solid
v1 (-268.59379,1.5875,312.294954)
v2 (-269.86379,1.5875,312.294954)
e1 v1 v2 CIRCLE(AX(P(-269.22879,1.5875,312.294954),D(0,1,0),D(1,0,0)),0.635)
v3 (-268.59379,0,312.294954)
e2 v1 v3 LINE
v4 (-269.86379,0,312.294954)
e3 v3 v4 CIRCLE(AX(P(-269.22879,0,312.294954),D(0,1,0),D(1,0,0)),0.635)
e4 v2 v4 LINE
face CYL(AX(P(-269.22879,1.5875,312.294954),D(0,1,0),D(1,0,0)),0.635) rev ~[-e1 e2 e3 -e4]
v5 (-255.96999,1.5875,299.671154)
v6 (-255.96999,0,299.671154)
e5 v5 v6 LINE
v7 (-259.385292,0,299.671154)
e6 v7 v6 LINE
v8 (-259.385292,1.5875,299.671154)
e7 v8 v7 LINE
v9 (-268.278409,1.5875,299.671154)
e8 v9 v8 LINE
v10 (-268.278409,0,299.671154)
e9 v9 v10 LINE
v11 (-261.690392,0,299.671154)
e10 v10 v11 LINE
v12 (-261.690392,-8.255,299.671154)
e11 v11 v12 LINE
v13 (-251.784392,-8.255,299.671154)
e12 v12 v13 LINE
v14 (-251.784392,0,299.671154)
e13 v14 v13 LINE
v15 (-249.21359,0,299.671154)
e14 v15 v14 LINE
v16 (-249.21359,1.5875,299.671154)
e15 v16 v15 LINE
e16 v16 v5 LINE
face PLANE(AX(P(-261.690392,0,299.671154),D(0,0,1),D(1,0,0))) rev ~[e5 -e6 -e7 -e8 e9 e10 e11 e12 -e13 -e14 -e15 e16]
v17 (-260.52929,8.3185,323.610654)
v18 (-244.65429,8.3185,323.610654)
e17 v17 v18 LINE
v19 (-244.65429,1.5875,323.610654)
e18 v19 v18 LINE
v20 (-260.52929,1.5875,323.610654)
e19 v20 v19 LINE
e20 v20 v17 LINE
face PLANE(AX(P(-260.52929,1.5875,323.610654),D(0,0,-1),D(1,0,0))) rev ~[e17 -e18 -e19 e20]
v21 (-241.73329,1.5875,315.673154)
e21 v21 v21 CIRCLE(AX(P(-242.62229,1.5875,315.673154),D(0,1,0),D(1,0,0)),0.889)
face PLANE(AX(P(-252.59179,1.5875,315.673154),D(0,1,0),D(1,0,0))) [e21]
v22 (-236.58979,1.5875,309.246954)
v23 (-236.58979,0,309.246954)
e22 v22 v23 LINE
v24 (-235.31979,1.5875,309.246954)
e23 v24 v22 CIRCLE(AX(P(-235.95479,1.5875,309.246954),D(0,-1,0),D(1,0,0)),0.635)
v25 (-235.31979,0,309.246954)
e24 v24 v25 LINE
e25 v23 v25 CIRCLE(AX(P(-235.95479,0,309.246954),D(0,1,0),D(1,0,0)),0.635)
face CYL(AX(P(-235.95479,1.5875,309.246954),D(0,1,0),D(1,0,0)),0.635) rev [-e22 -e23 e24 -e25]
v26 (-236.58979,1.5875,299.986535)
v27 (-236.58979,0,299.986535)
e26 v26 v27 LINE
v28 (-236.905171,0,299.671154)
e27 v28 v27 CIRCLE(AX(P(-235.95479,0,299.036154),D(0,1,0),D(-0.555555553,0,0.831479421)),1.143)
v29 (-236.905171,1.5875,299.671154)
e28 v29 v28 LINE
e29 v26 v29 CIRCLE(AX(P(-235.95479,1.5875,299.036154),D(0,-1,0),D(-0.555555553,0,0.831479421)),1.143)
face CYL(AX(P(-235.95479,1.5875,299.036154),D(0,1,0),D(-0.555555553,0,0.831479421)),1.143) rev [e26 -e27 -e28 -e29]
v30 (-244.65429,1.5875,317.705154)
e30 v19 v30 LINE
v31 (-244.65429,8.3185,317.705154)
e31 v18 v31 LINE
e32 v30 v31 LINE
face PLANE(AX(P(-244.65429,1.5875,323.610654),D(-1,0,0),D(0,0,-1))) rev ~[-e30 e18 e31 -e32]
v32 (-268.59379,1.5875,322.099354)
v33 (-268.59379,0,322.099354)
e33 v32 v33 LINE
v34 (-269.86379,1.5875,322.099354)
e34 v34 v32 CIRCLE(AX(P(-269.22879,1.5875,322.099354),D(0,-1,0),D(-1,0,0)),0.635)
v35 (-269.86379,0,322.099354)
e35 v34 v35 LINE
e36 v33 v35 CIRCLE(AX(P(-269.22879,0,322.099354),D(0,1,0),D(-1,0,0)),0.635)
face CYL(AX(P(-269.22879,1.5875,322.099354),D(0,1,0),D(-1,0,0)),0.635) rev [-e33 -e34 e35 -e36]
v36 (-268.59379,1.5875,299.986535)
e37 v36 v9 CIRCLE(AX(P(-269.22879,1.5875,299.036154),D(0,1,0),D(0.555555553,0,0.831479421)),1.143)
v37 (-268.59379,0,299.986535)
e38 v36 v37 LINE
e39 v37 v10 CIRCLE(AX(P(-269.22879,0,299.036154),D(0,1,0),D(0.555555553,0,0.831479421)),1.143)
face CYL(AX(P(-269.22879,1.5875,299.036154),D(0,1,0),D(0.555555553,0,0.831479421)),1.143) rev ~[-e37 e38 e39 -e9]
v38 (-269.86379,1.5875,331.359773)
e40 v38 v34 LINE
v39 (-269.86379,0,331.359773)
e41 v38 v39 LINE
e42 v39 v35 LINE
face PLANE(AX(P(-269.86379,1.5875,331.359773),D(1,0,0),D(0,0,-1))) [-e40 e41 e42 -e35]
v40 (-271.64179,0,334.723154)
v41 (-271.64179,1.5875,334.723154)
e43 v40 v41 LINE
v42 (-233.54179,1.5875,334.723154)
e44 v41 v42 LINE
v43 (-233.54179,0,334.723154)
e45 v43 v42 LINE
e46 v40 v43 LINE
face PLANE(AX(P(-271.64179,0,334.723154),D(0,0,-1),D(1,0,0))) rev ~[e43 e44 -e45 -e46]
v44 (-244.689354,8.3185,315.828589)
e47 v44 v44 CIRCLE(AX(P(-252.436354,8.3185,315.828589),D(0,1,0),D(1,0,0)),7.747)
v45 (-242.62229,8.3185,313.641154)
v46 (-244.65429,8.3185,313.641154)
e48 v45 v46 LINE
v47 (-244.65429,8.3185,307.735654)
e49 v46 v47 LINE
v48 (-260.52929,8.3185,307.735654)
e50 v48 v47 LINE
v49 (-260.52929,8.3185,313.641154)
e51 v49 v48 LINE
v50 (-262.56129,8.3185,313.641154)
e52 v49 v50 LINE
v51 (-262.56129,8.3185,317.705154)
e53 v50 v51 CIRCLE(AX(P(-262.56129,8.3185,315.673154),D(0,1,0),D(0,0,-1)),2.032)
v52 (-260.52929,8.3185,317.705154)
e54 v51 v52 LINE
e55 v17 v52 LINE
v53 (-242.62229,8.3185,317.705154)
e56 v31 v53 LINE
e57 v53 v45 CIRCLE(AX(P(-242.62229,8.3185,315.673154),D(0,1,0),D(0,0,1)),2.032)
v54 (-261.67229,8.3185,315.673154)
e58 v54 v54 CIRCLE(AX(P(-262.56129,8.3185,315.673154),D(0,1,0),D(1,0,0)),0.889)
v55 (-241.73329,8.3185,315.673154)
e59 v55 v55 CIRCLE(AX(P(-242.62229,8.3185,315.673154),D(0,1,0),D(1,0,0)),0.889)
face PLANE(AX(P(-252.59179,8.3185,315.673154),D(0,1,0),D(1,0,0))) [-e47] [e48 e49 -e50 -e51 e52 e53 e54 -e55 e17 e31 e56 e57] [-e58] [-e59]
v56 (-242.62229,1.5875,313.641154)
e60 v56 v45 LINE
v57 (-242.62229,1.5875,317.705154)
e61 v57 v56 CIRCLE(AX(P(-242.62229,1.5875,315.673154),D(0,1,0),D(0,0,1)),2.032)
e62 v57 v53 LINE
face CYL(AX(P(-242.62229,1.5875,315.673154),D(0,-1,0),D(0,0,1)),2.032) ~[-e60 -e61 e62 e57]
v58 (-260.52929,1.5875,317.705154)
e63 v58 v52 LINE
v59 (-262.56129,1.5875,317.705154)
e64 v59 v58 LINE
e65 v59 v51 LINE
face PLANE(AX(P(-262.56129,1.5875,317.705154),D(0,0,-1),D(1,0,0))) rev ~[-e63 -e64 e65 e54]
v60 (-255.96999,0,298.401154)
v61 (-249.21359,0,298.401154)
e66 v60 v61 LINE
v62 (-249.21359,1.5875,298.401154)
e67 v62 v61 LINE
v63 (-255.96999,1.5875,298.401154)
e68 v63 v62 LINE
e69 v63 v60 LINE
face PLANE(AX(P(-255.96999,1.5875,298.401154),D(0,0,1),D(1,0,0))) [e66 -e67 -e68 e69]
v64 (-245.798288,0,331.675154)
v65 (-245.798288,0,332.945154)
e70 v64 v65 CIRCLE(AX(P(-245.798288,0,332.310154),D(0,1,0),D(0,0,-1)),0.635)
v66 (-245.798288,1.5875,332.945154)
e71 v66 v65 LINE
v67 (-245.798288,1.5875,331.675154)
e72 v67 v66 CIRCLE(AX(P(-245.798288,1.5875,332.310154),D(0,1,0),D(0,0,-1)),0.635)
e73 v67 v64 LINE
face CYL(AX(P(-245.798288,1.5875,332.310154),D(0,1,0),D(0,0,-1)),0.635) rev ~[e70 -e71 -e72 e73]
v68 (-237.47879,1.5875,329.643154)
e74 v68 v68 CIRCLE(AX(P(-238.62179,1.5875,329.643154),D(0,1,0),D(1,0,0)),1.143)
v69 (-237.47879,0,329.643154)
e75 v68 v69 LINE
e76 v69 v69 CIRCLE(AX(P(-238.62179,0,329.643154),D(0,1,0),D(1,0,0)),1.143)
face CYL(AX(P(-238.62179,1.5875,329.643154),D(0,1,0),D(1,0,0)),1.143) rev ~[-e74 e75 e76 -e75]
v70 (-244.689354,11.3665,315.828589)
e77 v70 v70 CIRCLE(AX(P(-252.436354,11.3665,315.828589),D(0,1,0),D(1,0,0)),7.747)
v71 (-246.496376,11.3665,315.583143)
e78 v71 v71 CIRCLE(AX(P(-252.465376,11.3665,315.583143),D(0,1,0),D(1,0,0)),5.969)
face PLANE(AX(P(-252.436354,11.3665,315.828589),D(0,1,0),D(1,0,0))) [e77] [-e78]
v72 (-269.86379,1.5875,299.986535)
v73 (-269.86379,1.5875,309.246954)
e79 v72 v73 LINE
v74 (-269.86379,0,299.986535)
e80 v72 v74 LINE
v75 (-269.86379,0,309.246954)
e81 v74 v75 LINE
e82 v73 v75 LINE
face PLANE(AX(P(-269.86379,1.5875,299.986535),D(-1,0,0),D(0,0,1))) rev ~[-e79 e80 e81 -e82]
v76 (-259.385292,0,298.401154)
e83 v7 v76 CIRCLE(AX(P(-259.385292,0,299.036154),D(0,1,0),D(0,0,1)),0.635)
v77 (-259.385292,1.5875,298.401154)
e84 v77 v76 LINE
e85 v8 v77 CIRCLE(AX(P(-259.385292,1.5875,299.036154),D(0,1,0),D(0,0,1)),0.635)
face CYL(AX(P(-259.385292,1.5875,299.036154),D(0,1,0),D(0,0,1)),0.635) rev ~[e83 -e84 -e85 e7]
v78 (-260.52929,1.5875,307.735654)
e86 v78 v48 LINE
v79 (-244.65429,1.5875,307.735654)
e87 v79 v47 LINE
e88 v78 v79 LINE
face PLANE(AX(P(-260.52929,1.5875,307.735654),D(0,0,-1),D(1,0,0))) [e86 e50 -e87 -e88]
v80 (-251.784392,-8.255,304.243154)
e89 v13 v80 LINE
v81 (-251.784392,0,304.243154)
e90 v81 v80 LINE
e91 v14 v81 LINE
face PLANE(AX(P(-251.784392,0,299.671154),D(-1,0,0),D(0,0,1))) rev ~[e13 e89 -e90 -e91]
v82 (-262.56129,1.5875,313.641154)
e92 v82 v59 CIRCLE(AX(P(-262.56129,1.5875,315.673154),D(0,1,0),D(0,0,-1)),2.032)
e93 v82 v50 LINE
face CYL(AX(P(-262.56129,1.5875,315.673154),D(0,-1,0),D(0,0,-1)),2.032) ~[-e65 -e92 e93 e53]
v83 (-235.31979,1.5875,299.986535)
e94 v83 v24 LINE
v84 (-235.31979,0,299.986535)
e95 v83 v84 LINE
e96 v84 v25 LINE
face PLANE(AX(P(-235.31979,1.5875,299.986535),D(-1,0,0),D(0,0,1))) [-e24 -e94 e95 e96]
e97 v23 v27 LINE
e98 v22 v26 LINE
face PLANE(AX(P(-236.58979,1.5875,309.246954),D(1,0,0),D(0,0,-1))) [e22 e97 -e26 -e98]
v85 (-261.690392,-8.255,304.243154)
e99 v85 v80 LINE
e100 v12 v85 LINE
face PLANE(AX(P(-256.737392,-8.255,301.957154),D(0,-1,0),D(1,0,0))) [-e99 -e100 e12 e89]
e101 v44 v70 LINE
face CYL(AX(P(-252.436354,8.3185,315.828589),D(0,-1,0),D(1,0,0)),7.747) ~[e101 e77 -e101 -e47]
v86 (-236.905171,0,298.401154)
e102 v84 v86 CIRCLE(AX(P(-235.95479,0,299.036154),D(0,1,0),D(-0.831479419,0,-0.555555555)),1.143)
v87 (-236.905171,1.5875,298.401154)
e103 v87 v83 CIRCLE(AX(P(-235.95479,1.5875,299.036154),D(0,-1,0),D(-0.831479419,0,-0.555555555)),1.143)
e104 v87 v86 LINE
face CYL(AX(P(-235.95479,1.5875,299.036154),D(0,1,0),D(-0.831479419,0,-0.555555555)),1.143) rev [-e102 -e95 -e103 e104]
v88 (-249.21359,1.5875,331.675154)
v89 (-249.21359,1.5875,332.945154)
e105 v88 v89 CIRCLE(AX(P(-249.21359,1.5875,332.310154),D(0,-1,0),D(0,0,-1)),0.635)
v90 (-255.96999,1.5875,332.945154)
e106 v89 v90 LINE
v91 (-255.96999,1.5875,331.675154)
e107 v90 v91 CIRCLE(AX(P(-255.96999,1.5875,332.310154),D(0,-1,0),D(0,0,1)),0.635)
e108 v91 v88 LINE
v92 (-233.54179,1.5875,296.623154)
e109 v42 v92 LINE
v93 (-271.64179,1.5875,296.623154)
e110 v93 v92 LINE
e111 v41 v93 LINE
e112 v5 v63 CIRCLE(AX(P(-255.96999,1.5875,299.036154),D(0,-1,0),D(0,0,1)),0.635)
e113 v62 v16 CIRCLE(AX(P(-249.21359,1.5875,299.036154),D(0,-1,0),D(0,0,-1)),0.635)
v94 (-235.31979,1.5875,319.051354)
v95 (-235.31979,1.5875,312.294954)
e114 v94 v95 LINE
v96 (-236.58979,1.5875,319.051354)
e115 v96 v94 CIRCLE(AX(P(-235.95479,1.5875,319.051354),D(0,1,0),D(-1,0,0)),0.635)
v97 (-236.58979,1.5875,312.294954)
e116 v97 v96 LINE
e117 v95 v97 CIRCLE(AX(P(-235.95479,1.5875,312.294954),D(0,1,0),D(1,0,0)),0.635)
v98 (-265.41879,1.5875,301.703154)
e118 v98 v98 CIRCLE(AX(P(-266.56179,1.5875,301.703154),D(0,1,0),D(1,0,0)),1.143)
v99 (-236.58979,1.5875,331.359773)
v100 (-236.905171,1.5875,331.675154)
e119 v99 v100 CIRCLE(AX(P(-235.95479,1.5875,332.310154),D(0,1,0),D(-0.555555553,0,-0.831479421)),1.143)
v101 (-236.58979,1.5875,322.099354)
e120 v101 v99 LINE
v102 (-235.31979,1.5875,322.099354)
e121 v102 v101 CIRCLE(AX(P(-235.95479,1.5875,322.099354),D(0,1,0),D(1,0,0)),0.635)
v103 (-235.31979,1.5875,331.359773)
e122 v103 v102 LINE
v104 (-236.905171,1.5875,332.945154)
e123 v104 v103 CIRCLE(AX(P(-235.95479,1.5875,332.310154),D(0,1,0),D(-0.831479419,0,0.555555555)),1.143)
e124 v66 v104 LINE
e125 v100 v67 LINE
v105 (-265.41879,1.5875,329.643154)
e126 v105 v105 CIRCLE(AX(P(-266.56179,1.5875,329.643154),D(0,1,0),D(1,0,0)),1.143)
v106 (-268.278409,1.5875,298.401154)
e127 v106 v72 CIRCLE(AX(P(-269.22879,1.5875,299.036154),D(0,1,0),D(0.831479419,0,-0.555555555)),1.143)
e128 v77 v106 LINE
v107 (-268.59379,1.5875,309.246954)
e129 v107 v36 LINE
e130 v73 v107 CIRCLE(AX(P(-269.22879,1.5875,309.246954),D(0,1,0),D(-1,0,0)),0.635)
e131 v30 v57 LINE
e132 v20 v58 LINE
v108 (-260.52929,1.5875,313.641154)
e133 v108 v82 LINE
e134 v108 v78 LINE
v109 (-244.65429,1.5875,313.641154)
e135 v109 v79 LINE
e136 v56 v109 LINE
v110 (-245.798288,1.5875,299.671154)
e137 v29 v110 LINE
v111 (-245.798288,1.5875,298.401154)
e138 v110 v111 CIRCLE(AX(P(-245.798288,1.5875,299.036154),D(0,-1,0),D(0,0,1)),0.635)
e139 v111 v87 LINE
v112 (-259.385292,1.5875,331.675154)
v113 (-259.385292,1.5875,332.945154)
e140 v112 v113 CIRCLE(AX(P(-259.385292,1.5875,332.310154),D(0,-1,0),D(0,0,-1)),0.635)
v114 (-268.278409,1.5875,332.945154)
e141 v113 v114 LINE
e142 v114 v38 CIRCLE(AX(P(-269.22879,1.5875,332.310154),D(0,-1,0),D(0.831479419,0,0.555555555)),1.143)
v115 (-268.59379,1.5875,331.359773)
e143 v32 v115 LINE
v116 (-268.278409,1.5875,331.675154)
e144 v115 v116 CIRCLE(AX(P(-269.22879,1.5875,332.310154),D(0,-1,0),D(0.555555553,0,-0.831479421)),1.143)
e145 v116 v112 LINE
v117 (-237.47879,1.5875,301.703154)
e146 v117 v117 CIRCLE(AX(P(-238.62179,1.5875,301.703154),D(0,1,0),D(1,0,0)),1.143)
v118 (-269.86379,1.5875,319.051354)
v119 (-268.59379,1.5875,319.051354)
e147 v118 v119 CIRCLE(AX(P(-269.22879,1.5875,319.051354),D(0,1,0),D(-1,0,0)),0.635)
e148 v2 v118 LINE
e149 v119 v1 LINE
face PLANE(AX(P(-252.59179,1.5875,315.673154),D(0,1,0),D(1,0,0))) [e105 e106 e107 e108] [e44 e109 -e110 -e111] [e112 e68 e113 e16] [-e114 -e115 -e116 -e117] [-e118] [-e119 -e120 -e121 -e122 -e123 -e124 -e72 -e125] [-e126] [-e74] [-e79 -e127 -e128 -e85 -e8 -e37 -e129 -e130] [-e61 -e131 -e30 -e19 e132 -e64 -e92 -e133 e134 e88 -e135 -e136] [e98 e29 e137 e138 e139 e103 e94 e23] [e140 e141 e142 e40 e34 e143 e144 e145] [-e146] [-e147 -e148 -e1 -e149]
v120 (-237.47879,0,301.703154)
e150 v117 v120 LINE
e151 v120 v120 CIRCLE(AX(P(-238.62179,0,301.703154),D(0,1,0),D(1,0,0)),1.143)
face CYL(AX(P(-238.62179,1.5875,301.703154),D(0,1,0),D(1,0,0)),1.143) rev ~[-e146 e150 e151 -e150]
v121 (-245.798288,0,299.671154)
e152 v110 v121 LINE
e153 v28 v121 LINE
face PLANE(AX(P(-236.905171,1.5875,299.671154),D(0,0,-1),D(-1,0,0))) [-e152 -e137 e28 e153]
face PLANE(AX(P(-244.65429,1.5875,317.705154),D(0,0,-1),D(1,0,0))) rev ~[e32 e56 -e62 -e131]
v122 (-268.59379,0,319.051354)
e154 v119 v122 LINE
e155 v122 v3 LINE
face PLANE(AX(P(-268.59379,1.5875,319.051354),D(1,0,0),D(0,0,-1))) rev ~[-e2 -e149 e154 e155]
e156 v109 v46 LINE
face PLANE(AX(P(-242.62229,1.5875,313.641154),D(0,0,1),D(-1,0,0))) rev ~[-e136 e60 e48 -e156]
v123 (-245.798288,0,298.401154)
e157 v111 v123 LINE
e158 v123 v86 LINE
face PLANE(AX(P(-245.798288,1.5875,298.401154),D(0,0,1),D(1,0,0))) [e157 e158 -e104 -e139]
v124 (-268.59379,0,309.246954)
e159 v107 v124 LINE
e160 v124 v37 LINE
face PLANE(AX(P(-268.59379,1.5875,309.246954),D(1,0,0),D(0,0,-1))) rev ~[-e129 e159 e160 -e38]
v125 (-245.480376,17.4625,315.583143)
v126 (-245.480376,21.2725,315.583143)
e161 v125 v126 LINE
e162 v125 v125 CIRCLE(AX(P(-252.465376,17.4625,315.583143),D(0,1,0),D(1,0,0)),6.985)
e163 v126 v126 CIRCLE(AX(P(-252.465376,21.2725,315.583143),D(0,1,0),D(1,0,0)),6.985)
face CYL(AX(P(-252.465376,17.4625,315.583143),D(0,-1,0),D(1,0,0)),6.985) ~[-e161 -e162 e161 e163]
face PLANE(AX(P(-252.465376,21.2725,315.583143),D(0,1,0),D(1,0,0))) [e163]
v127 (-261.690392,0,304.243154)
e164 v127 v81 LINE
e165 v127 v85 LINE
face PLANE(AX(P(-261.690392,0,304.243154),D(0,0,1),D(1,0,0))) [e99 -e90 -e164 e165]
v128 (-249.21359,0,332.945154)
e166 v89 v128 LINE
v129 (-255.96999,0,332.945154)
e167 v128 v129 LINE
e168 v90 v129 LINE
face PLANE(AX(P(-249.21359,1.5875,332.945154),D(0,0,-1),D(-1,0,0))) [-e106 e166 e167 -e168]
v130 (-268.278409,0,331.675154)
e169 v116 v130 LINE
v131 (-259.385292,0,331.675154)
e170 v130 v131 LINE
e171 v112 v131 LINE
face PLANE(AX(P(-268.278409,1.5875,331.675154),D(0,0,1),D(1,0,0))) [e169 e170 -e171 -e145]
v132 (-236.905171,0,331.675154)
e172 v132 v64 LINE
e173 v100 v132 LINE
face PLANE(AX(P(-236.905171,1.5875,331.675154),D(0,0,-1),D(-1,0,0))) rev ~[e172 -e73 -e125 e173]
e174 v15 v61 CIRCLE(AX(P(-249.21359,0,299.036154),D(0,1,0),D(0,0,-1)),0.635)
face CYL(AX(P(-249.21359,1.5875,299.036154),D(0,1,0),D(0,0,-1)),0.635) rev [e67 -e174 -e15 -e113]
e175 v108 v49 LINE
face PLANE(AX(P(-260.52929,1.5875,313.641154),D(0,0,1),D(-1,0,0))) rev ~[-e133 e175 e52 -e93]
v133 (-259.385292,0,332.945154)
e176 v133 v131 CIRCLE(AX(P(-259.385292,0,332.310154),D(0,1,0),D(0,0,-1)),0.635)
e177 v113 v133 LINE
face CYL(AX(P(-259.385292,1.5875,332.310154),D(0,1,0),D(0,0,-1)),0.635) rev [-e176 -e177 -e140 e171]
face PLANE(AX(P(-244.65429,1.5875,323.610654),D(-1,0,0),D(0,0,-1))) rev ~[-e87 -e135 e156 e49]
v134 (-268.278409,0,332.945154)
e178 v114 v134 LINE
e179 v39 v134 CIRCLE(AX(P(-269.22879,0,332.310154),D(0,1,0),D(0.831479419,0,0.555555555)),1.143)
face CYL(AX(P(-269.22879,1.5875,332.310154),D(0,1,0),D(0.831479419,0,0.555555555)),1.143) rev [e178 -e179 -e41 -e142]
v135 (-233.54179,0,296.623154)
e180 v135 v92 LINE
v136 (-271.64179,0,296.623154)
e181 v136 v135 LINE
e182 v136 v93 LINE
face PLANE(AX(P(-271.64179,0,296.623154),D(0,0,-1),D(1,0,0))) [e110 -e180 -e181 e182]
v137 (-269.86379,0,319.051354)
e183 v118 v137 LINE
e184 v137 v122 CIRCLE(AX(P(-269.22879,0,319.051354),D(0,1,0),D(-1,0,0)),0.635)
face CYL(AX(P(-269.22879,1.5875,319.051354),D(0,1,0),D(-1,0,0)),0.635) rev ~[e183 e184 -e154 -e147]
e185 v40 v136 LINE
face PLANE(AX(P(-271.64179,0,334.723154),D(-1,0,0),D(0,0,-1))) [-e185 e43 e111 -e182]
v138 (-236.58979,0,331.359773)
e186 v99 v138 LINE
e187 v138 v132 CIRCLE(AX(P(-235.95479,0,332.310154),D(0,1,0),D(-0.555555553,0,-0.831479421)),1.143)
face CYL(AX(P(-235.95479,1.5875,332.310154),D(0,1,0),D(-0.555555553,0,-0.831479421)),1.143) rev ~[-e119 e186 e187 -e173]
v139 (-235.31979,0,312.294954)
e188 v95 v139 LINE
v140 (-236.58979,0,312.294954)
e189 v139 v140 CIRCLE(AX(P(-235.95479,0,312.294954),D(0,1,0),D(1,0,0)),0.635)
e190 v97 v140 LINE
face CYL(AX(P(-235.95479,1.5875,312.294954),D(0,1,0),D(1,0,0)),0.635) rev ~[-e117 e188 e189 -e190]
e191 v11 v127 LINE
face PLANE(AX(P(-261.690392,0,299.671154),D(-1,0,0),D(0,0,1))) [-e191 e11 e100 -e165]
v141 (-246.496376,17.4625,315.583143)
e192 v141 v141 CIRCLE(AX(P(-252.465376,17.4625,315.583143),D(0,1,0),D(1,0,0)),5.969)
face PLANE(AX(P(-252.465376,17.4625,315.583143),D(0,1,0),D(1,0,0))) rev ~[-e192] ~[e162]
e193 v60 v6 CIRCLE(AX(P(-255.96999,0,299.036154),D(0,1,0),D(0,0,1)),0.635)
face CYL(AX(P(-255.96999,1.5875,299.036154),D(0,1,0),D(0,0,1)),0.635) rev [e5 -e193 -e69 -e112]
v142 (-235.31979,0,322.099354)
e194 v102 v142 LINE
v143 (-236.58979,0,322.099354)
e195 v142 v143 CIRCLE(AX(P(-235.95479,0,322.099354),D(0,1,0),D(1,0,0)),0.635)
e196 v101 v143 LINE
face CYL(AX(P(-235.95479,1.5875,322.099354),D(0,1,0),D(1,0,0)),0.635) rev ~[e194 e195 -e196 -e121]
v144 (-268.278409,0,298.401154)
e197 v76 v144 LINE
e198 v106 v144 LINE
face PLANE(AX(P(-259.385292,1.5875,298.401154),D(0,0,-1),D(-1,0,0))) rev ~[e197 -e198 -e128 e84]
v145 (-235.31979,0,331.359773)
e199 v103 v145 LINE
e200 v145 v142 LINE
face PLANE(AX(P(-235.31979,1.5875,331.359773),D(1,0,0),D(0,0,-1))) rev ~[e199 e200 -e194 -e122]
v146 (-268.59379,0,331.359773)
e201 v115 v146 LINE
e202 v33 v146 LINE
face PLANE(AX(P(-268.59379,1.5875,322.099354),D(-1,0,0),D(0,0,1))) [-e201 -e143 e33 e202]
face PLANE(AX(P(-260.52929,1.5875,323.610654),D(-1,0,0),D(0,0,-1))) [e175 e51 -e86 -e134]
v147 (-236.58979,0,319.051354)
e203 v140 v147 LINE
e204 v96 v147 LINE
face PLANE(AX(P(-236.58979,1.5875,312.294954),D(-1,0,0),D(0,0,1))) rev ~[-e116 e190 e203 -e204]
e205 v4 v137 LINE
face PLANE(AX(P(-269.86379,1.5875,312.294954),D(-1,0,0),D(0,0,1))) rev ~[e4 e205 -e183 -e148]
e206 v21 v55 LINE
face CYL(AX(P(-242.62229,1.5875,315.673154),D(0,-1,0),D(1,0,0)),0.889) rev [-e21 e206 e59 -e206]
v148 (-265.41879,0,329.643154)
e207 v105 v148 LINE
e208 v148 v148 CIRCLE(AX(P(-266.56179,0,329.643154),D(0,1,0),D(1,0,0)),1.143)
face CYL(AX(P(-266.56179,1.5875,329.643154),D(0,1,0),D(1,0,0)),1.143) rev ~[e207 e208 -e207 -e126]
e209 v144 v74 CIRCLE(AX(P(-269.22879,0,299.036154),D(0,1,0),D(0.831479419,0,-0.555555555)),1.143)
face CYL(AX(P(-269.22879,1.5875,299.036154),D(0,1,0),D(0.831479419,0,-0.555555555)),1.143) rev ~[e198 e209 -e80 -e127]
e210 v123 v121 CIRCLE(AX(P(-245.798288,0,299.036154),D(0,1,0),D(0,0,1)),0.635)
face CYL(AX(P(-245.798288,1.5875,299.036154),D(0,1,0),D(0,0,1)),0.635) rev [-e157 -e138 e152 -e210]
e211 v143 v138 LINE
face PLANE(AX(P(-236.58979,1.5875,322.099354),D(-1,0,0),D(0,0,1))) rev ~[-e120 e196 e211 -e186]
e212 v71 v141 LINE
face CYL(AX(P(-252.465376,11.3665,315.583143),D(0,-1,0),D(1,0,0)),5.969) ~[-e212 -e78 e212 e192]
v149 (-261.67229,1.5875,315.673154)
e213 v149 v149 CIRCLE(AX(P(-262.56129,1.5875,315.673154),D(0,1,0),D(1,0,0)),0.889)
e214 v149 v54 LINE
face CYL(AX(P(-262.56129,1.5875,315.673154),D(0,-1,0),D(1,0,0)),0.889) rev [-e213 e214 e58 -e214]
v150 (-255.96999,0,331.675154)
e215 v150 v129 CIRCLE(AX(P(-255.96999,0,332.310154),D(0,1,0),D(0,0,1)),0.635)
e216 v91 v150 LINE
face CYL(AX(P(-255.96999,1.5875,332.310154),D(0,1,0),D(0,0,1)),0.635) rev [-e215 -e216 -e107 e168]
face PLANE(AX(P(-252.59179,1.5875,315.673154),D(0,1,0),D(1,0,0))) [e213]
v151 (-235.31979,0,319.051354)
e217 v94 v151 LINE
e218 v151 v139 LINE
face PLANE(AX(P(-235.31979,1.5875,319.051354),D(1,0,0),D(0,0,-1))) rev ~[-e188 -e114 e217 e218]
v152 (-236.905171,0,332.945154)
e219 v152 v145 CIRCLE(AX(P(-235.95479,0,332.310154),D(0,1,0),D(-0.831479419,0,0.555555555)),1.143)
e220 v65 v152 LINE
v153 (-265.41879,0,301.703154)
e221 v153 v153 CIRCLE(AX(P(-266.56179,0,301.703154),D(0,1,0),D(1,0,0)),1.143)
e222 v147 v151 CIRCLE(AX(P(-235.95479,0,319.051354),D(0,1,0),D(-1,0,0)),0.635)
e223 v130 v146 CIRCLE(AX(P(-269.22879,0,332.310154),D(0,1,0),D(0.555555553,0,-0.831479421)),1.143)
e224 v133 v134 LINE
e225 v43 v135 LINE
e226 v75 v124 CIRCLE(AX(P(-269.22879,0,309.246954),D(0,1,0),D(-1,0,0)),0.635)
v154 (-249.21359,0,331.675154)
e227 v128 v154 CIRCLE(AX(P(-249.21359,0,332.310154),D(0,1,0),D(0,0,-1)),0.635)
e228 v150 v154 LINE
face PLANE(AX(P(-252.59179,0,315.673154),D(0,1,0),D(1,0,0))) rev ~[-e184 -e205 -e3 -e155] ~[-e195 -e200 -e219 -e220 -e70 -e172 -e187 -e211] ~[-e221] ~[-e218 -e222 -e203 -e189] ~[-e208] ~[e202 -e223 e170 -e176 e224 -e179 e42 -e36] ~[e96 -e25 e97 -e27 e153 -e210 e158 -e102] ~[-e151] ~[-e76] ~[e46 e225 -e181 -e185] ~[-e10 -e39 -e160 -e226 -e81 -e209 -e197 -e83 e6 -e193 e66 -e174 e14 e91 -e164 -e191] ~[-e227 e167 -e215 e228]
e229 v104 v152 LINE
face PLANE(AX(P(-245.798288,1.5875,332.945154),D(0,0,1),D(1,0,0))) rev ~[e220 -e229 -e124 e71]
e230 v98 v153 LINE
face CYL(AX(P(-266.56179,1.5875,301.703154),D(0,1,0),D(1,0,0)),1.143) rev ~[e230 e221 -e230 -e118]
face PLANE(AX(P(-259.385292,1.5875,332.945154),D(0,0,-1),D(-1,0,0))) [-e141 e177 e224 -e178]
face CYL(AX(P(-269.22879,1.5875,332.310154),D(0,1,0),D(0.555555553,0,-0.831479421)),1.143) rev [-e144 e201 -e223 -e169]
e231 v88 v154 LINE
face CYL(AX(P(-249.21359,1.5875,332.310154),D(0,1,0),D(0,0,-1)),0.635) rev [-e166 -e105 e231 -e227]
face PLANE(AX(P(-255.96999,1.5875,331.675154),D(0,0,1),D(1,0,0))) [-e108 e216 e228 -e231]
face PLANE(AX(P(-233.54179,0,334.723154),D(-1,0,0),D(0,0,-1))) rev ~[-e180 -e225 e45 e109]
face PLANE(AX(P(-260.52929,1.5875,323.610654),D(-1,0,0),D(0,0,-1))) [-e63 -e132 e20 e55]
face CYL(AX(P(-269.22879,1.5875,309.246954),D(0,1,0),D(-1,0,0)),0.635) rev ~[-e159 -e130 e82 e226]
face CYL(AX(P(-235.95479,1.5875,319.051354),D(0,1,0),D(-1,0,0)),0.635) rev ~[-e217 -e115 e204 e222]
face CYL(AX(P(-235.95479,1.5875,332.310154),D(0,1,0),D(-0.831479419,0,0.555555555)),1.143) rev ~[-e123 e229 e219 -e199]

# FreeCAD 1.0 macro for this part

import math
import FreeCAD as App
import Part
import Sketcher

V = App.Vector
Q = App.Units.Quantity

doc = App.newDocument("Part")
params = doc.addObject("Spreadsheet::Sheet", "Params")
for row, (alias, value) in enumerate([
    ("sketch1_width", "1.5 in"),
    ("pad1_length", "0.0625 in"),
    ("sketch2_diameter", "0.09 in"),
    ("sketch2_radius", "0.025 in"),
    ("sketch2_width", "0.266 in"),
    ("pocket1_length", "0.31 in"),
    ("sketch3_width", "0.625 in"),
    ("pad2_length", "0.265 in"),
    ("sketch4_diameter", "0.07 in"),
    ("sketch4_radius", "0.08 in"),
    ("sketch4_width", "0.08 in"),
    ("pad3_length", "0.265 in"),
    ("sketch5_diameter", "0.61 in"),
    ("pad4_length", "0.12 in"),
    ("sketch6_diameter", "0.47 in"),
    ("pad5_length", "0.24 in"),
    ("sketch7_diameter", "0.55 in"),
    ("pad6_length", "0.15 in"),
    ("sketch8_width", "0.39 in"),
    ("sketch8_height", "0.18 in"),
    ("pad7_length", "0.325 in"),
], start=1):
    params.set(f"A{row}", alias)
    params.set(f"B{row}", "=" + value)
    params.setAlias(f"B{row}", alias)

body = doc.addObject("PartDesign::Body", "Body")

# Sketch on XZ plane
sketch1 = body.newObject("Sketcher::SketchObject", "Sketch")
sketch1.AttachmentSupport = (doc.getObject("XZ_Plane"), [""])
sketch1.MapMode = "FlatFace"
sketch1.addGeometry(Part.LineSegment(V(-271.64179, 296.623154, 0), V(-271.64179, 334.723154, 0)), False)
sketch1.addGeometry(Part.LineSegment(V(-271.64179, 334.723154, 0), V(-233.54179, 334.723154, 0)), False)
sketch1.addGeometry(Part.LineSegment(V(-233.54179, 334.723154, 0), V(-233.54179, 296.623154, 0)), False)
sketch1.addGeometry(Part.LineSegment(V(-233.54179, 296.623154, 0), V(-271.64179, 296.623154, 0)), False)
sketch1.addConstraint(Sketcher.Constraint("Coincident", 0, 2, 1, 1))
sketch1.addConstraint(Sketcher.Constraint("Coincident", 1, 2, 2, 1))
sketch1.addConstraint(Sketcher.Constraint("Coincident", 2, 2, 3, 1))
sketch1.addConstraint(Sketcher.Constraint("Coincident", 3, 2, 0, 1))
sketch1.addConstraint(Sketcher.Constraint("Vertical", 0))
sketch1.addConstraint(Sketcher.Constraint("Horizontal", 1))
sketch1.addConstraint(Sketcher.Constraint("Vertical", 2))
sketch1.addConstraint(Sketcher.Constraint("Horizontal", 3))
sketch1.addConstraint(Sketcher.Constraint("Equal", 3, 0))
sketch1.addConstraint(Sketcher.Constraint("DistanceX", 1, 1, 1, 2, Q("1.5 in")))
sketch1.addConstraint(Sketcher.Constraint("DistanceX", 0, 2, -1, 1, Q("271.64179 mm")))
sketch1.addConstraint(Sketcher.Constraint("DistanceY", -1, 1, 0, 2, Q("334.723154 mm")))
sketch1.setExpression("Constraints[9]", "Params.sketch1_width")
pad1 = body.newObject("PartDesign::Pad", "Pad")
pad1.Profile = sketch1
pad1.setExpression("Length", "Params.pad1_length")
pad1.Reversed = True

# Sketch on XZ plane
sketch2 = body.newObject("Sketcher::SketchObject", "Sketch001")
sketch2.AttachmentSupport = (doc.getObject("XZ_Plane"), [""])
sketch2.MapMode = "FlatFace"
sketch2.AttachmentOffset = App.Placement(V(0, 0, -0.0625 * 25.4), App.Rotation())
sketch2.addGeometry(Part.Circle(V(-266.56179, 301.703154, 0), V(0, 0, 1), 1.143), False)
sketch2.addGeometry(Part.Circle(V(-238.62179, 301.703154, 0), V(0, 0, 1), 1.143), False)
sketch2.addGeometry(Part.Circle(V(-266.56179, 329.643154, 0), V(0, 0, 1), 1.143), False)
sketch2.addGeometry(Part.Circle(V(-238.62179, 329.643154, 0), V(0, 0, 1), 1.143), False)
sketch2.addGeometry(Part.LineSegment(V(-269.86379, 312.294954, 0), V(-269.86379, 319.051354, 0)), False)
sketch2.addGeometry(Part.ArcOfCircle(Part.Circle(V(-269.22879, 319.051354, 0), V(0, 0, 1), 0.635), math.radians(0), math.radians(180)), False)
sketch2.addGeometry(Part.LineSegment(V(-268.59379, 319.051354, 0), V(-268.59379, 312.294954, 0)), False)
sketch2.addGeometry(Part.ArcOfCircle(Part.Circle(V(-269.22879, 312.294954, 0), V(0, 0, 1), 0.635), math.radians(180), math.radians(360)), False)
sketch2.addGeometry(Part.LineSegment(V(-259.385292, 298.401154, 0), V(-268.278409, 298.401154, 0)), False)
sketch2.addGeometry(Part.ArcOfCircle(Part.Circle(V(-269.22879, 299.036154, 0), V(0, 0, 1), 1.143), math.radians(123.748989), math.radians(326.251011)), False)
sketch2.addGeometry(Part.LineSegment(V(-269.86379, 299.986535, 0), V(-269.86379, 309.246954, 0)), False)
sketch2.addGeometry(Part.ArcOfCircle(Part.Circle(V(-269.22879, 309.246954, 0), V(0, 0, 1), 0.635), math.radians(0), math.radians(180)), False)
sketch2.addGeometry(Part.LineSegment(V(-268.59379, 309.246954, 0), V(-268.59379, 299.986535, 0)), False)
sketch2.addGeometry(Part.ArcOfCircle(Part.Circle(V(-269.22879, 299.036154, 0), V(0, 0, 1), 1.143), math.radians(33.748988), math.radians(56.251012)), False)
sketch2.addGeometry(Part.LineSegment(V(-268.278409, 299.671154, 0), V(-259.385292, 299.671154, 0)), False)
sketch2.addGeometry(Part.ArcOfCircle(Part.Circle(V(-259.385292, 299.036154, 0), V(0, 0, 1), 0.635), math.radians(-90), math.radians(90)), False)
sketch2.addGeometry(Part.LineSegment(V(-249.21359, 298.401154, 0), V(-255.96999, 298.401154, 0)), False)
sketch2.addGeometry(Part.ArcOfCircle(Part.Circle(V(-255.96999, 299.036154, 0), V(0, 0, 1), 0.635), math.radians(90), math.radians(270)), False)
sketch2.addGeometry(Part.LineSegment(V(-255.96999, 299.671154, 0), V(-249.21359, 299.671154, 0)), False)
sketch2.addGeometry(Part.ArcOfCircle(Part.Circle(V(-249.21359, 299.036154, 0), V(0, 0, 1), 0.635), math.radians(-90), math.radians(90)), False)
sketch2.addGeometry(Part.LineSegment(V(-236.58979, 299.986535, 0), V(-236.58979, 309.246954, 0)), False)
sketch2.addGeometry(Part.ArcOfCircle(Part.Circle(V(-235.95479, 309.246954, 0), V(0, 0, 1), 0.635), math.radians(0), math.radians(180)), False)
sketch2.addGeometry(Part.LineSegment(V(-235.31979, 309.246954, 0), V(-235.31979, 299.986535, 0)), False)
sketch2.addGeometry(Part.ArcOfCircle(Part.Circle(V(-235.95479, 299.036154, 0), V(0, 0, 1), 1.143), math.radians(-146.251011), math.radians(56.251011)), False)
sketch2.addGeometry(Part.LineSegment(V(-236.905171, 298.401154, 0), V(-245.798288, 298.401154, 0)), False)
sketch2.addGeometry(Part.ArcOfCircle(Part.Circle(V(-245.798288, 299.036154, 0), V(0, 0, 1), 0.635), math.radians(90), math.radians(270)), False)
sketch2.addGeometry(Part.LineSegment(V(-245.798288, 299.671154, 0), V(-236.905171, 299.671154, 0)), False)
sketch2.addGeometry(Part.ArcOfCircle(Part.Circle(V(-235.95479, 299.036154, 0), V(0, 0, 1), 1.143), math.radians(123.748988), math.radians(146.251012)), False)
sketch2.addGeometry(Part.LineSegment(V(-236.58979, 312.294954, 0), V(-236.58979, 319.051354, 0)), False)
sketch2.addGeometry(Part.ArcOfCircle(Part.Circle(V(-235.95479, 319.051354, 0), V(0, 0, 1), 0.635), math.radians(0), math.radians(180)), False)
sketch2.addGeometry(Part.LineSegment(V(-235.31979, 319.051354, 0), V(-235.31979, 312.294954, 0)), False)
sketch2.addGeometry(Part.ArcOfCircle(Part.Circle(V(-235.95479, 312.294954, 0), V(0, 0, 1), 0.635), math.radians(180), math.radians(360)), False)
sketch2.addGeometry(Part.LineSegment(V(-245.798288, 332.945154, 0), V(-236.905171, 332.945154, 0)), False)
sketch2.addGeometry(Part.ArcOfCircle(Part.Circle(V(-235.95479, 332.310154, 0), V(0, 0, 1), 1.143), math.radians(-56.251011), math.radians(146.251011)), False)
sketch2.addGeometry(Part.LineSegment(V(-235.31979, 331.359773, 0), V(-235.31979, 322.099354, 0)), False)
sketch2.addGeometry(Part.ArcOfCircle(Part.Circle(V(-235.95479, 322.099354, 0), V(0, 0, 1), 0.635), math.radians(180), math.radians(360)), False)
sketch2.addGeometry(Part.LineSegment(V(-236.58979, 322.099354, 0), V(-236.58979, 331.359773, 0)), False)
sketch2.addGeometry(Part.ArcOfCircle(Part.Circle(V(-235.95479, 332.310154, 0), V(0, 0, 1), 1.143), math.radians(-146.251012), math.radians(-123.748988)), False)
sketch2.addGeometry(Part.LineSegment(V(-236.905171, 331.675154, 0), V(-245.798288, 331.675154, 0)), False)
sketch2.addGeometry(Part.ArcOfCircle(Part.Circle(V(-245.798288, 332.310154, 0), V(0, 0, 1), 0.635), math.radians(90), math.radians(270)), False)
sketch2.addGeometry(Part.LineSegment(V(-268.59379, 331.359773, 0), V(-268.59379, 322.099354, 0)), False)
sketch2.addGeometry(Part.ArcOfCircle(Part.Circle(V(-269.22879, 322.099354, 0), V(0, 0, 1), 0.635), math.radians(180), math.radians(360)), False)
sketch2.addGeometry(Part.LineSegment(V(-269.86379, 322.099354, 0), V(-269.86379, 331.359773, 0)), False)
sketch2.addGeometry(Part.ArcOfCircle(Part.Circle(V(-269.22879, 332.310154, 0), V(0, 0, 1), 1.143), math.radians(33.748989), math.radians(236.251011)), False)
sketch2.addGeometry(Part.LineSegment(V(-268.278409, 332.945154, 0), V(-259.385292, 332.945154, 0)), False)
sketch2.addGeometry(Part.ArcOfCircle(Part.Circle(V(-259.385292, 332.310154, 0), V(0, 0, 1), 0.635), math.radians(-90), math.radians(90)), False)
sketch2.addGeometry(Part.LineSegment(V(-259.385292, 331.675154, 0), V(-268.278409, 331.675154, 0)), False)
sketch2.addGeometry(Part.ArcOfCircle(Part.Circle(V(-269.22879, 332.310154, 0), V(0, 0, 1), 1.143), math.radians(-56.251012), math.radians(-33.748988)), False)
sketch2.addGeometry(Part.LineSegment(V(-249.21359, 331.675154, 0), V(-255.96999, 331.675154, 0)), False)
sketch2.addGeometry(Part.ArcOfCircle(Part.Circle(V(-255.96999, 332.310154, 0), V(0, 0, 1), 0.635), math.radians(90), math.radians(270)), False)
sketch2.addGeometry(Part.LineSegment(V(-255.96999, 332.945154, 0), V(-249.21359, 332.945154, 0)), False)
sketch2.addGeometry(Part.ArcOfCircle(Part.Circle(V(-249.21359, 332.310154, 0), V(0, 0, 1), 0.635), math.radians(-90), math.radians(90)), False)
sketch2.addConstraint(Sketcher.Constraint("Tangent", 4, 2, 5, 2))
sketch2.addConstraint(Sketcher.Constraint("Tangent", 5, 1, 6, 1))
sketch2.addConstraint(Sketcher.Constraint("Tangent", 6, 2, 7, 2))
sketch2.addConstraint(Sketcher.Constraint("Tangent", 7, 1, 4, 1))
sketch2.addConstraint(Sketcher.Constraint("Coincident", 8, 2, 9, 2))
sketch2.addConstraint(Sketcher.Constraint("Coincident", 9, 1, 10, 1))
sketch2.addConstraint(Sketcher.Constraint("Tangent", 10, 2, 11, 2))
sketch2.addConstraint(Sketcher.Constraint("Tangent", 11, 1, 12, 1))
sketch2.addConstraint(Sketcher.Constraint("Coincident", 12, 2, 13, 2))
sketch2.addConstraint(Sketcher.Constraint("Coincident", 13, 1, 14, 1))
sketch2.addConstraint(Sketcher.Constraint("Tangent", 14, 2, 15, 2))
sketch2.addConstraint(Sketcher.Constraint("Tangent", 15, 1, 8, 1))
sketch2.addConstraint(Sketcher.Constraint("Tangent", 16, 2, 17, 2))
sketch2.addConstraint(Sketcher.Constraint("Tangent", 17, 1, 18, 1))
sketch2.addConstraint(Sketcher.Constraint("Tangent", 18, 2, 19, 2))
sketch2.addConstraint(Sketcher.Constraint("Tangent", 19, 1, 16, 1))
sketch2.addConstraint(Sketcher.Constraint("Tangent", 20, 2, 21, 2))
sketch2.addConstraint(Sketcher.Constraint("Tangent", 21, 1, 22, 1))
sketch2.addConstraint(Sketcher.Constraint("Coincident", 22, 2, 23, 2))
sketch2.addConstraint(Sketcher.Constraint("Coincident", 23, 1, 24, 1))
sketch2.addConstraint(Sketcher.Constraint("Tangent", 24, 2, 25, 2))
sketch2.addConstraint(Sketcher.Constraint("Tangent", 25, 1, 26, 1))
sketch2.addConstraint(Sketcher.Constraint("Coincident", 26, 2, 27, 2))
sketch2.addConstraint(Sketcher.Constraint("Coincident", 27, 1, 20, 1))
sketch2.addConstraint(Sketcher.Constraint("Tangent", 28, 2, 29, 2))
sketch2.addConstraint(Sketcher.Constraint("Tangent", 29, 1, 30, 1))
sketch2.addConstraint(Sketcher.Constraint("Tangent", 30, 2, 31, 2))
sketch2.addConstraint(Sketcher.Constraint("Tangent", 31, 1, 28, 1))
sketch2.addConstraint(Sketcher.Constraint("Coincident", 32, 2, 33, 2))
sketch2.addConstraint(Sketcher.Constraint("Coincident", 33, 1, 34, 1))
sketch2.addConstraint(Sketcher.Constraint("Tangent", 34, 2, 35, 2))
sketch2.addConstraint(Sketcher.Constraint("Tangent", 35, 1, 36, 1))
sketch2.addConstraint(Sketcher.Constraint("Coincident", 36, 2, 37, 2))
sketch2.addConstraint(Sketcher.Constraint("Coincident", 37, 1, 38, 1))
sketch2.addConstraint(Sketcher.Constraint("Tangent", 38, 2, 39, 2))
sketch2.addConstraint(Sketcher.Constraint("Tangent", 39, 1, 32, 1))
sketch2.addConstraint(Sketcher.Constraint("Tangent", 40, 2, 41, 2))
sketch2.addConstraint(Sketcher.Constraint("Tangent", 41, 1, 42, 1))
sketch2.addConstraint(Sketcher.Constraint("Coincident", 42, 2, 43, 2))
sketch2.addConstraint(Sketcher.Constraint("Coincident", 43, 1, 44, 1))
sketch2.addConstraint(Sketcher.Constraint("Tangent", 44, 2, 45, 2))
sketch2.addConstraint(Sketcher.Constraint("Tangent", 45, 1, 46, 1))
sketch2.addConstraint(Sketcher.Constraint("Coincident", 46, 2, 47, 2))
sketch2.addConstraint(Sketcher.Constraint("Coincident", 47, 1, 40, 1))
sketch2.addConstraint(Sketcher.Constraint("Tangent", 48, 2, 49, 2))
sketch2.addConstraint(Sketcher.Constraint("Tangent", 49, 1, 50, 1))
sketch2.addConstraint(Sketcher.Constraint("Tangent", 50, 2, 51, 2))
sketch2.addConstraint(Sketcher.Constraint("Tangent", 51, 1, 48, 1))
sketch2.addConstraint(Sketcher.Constraint("Vertical", 4))
sketch2.addConstraint(Sketcher.Constraint("Vertical", 6))
sketch2.addConstraint(Sketcher.Constraint("Horizontal", 8))
sketch2.addConstraint(Sketcher.Constraint("Vertical", 10))
sketch2.addConstraint(Sketcher.Constraint("Vertical", 12))
sketch2.addConstraint(Sketcher.Constraint("Horizontal", 14))
sketch2.addConstraint(Sketcher.Constraint("Horizontal", 16))
sketch2.addConstraint(Sketcher.Constraint("Horizontal", 18))
sketch2.addConstraint(Sketcher.Constraint("Vertical", 20))
sketch2.addConstraint(Sketcher.Constraint("Vertical", 22))
sketch2.addConstraint(Sketcher.Constraint("Horizontal", 24))
sketch2.addConstraint(Sketcher.Constraint("Horizontal", 26))
sketch2.addConstraint(Sketcher.Constraint("Vertical", 28))
sketch2.addConstraint(Sketcher.Constraint("Vertical", 30))
sketch2.addConstraint(Sketcher.Constraint("Horizontal", 32))
sketch2.addConstraint(Sketcher.Constraint("Vertical", 34))
sketch2.addConstraint(Sketcher.Constraint("Vertical", 36))
sketch2.addConstraint(Sketcher.Constraint("Horizontal", 38))
sketch2.addConstraint(Sketcher.Constraint("Vertical", 40))
sketch2.addConstraint(Sketcher.Constraint("Vertical", 42))
sketch2.addConstraint(Sketcher.Constraint("Horizontal", 44))
sketch2.addConstraint(Sketcher.Constraint("Horizontal", 46))
sketch2.addConstraint(Sketcher.Constraint("Horizontal", 48))
sketch2.addConstraint(Sketcher.Constraint("Horizontal", 50))
sketch2.addConstraint(Sketcher.Constraint("Coincident", 13, 3, 9, 3))
sketch2.addConstraint(Sketcher.Constraint("Coincident", 27, 3, 23, 3))
sketch2.addConstraint(Sketcher.Constraint("Coincident", 37, 3, 33, 3))
sketch2.addConstraint(Sketcher.Constraint("Coincident", 47, 3, 43, 3))
sketch2.addConstraint(Sketcher.Constraint("Equal", 0, 1))
sketch2.addConstraint(Sketcher.Constraint("Equal", 1, 2))
sketch2.addConstraint(Sketcher.Constraint("Equal", 2, 3))
sketch2.addConstraint(Sketcher.Constraint("Equal", 3, 9))
sketch2.addConstraint(Sketcher.Constraint("Equal", 7, 11))
sketch2.addConstraint(Sketcher.Constraint("Equal", 9, 13))
sketch2.addConstraint(Sketcher.Constraint("Equal", 11, 15))
sketch2.addConstraint(Sketcher.Constraint("Equal", 15, 17))
sketch2.addConstraint(Sketcher.Constraint("Equal", 19, 21))
sketch2.addConstraint(Sketcher.Constraint("Equal", 13, 23))
sketch2.addConstraint(Sketcher.Constraint("Equal", 21, 25))
sketch2.addConstraint(Sketcher.Constraint("Equal", 23, 27))
sketch2.addConstraint(Sketcher.Constraint("Equal", 25, 29))
sketch2.addConstraint(Sketcher.Constraint("Equal", 27, 33))
sketch2.addConstraint(Sketcher.Constraint("Equal", 31, 35))
sketch2.addConstraint(Sketcher.Constraint("Equal", 33, 37))
sketch2.addConstraint(Sketcher.Constraint("Equal", 35, 39))
sketch2.addConstraint(Sketcher.Constraint("Equal", 39, 41))
sketch2.addConstraint(Sketcher.Constraint("Equal", 37, 43))
sketch2.addConstraint(Sketcher.Constraint("Equal", 41, 45))
sketch2.addConstraint(Sketcher.Constraint("Equal", 43, 47))
sketch2.addConstraint(Sketcher.Constraint("Equal", 45, 49))
sketch2.addConstraint(Sketcher.Constraint("Horizontal", 0, 3, 1, 3))
sketch2.addConstraint(Sketcher.Constraint("Horizontal", 2, 3, 3, 3))
sketch2.addConstraint(Sketcher.Constraint("Horizontal", 13, 3, 15, 3))
sketch2.addConstraint(Sketcher.Constraint("Horizontal", 15, 3, 17, 3))
sketch2.addConstraint(Sketcher.Constraint("Horizontal", 11, 3, 21, 3))
sketch2.addConstraint(Sketcher.Constraint("Horizontal", 19, 3, 23, 3))
sketch2.addConstraint(Sketcher.Constraint("Horizontal", 23, 3, 25, 3))
sketch2.addConstraint(Sketcher.Constraint("Horizontal", 5, 3, 29, 3))
sketch2.addConstraint(Sketcher.Constraint("Horizontal", 7, 3, 31, 3))
sketch2.addConstraint(Sketcher.Constraint("Horizontal", 37, 3, 39, 3))
sketch2.addConstraint(Sketcher.Constraint("Horizontal", 35, 3, 41, 3))
sketch2.addConstraint(Sketcher.Constraint("Horizontal", 39, 3, 43, 3))
sketch2.addConstraint(Sketcher.Constraint("Horizontal", 43, 3, 45, 3))
sketch2.addConstraint(Sketcher.Constraint("Horizontal", 47, 3, 49, 3))
sketch2.addConstraint(Sketcher.Constraint("Horizontal", 9, 1, 12, 2))
sketch2.addConstraint(Sketcher.Constraint("Horizontal", 12, 2, 22, 2))
sketch2.addConstraint(Sketcher.Constraint("Horizontal", 33, 1, 36, 2))
sketch2.addConstraint(Sketcher.Constraint("Horizontal", 36, 2, 42, 2))
sketch2.addConstraint(Sketcher.Constraint("Vertical", 0, 3, 2, 3))
sketch2.addConstraint(Sketcher.Constraint("Vertical", 1, 3, 3, 3))
sketch2.addConstraint(Sketcher.Constraint("Vertical", 7, 3, 9, 3))
sketch2.addConstraint(Sketcher.Constraint("Vertical", 27, 3, 29, 3))
sketch2.addConstraint(Sketcher.Constraint("Vertical", 31, 3, 33, 3))
sketch2.addConstraint(Sketcher.Constraint("Vertical", 25, 3, 39, 3))
sketch2.addConstraint(Sketcher.Constraint("Vertical", 13, 3, 41, 3))
sketch2.addConstraint(Sketcher.Constraint("Vertical", 15, 3, 45, 3))
sketch2.addConstraint(Sketcher.Constraint("Vertical", 17, 3, 49, 3))
sketch2.addConstraint(Sketcher.Constraint("Vertical", 19, 3, 51, 3))
sketch2.addConstraint(Sketcher.Constraint("Equal", 14, 24))
sketch2.addConstraint(Sketcher.Constraint("Equal", 50, 4))
sketch2.addConstraint(Sketcher.Constraint("Equal", 22, 34))
sketch2.addConstraint(Sketcher.Constraint("Diameter", 0, Q("0.09 in")))
sketch2.addConstraint(Sketcher.Constraint("Radius", 5, Q("0.025 in")))
sketch2.addConstraint(Sketcher.Constraint("DistanceX", 16, 2, 16, 1, Q("0.266 in")))
sketch2.addConstraint(Sketcher.Constraint("DistanceY", 10, 1, 10, 2, Q("9.260419 mm")))
sketch2.addConstraint(Sketcher.Constraint("DistanceX", 8, 2, 8, 1, Q("8.893117 mm")))
sketch2.addConstraint(Sketcher.Constraint("DistanceX", 0, 3, -1, 1, Q("266.56179 mm")))
sketch2.addConstraint(Sketcher.Constraint("DistanceX", 1, 3, -1, 1, Q("238.62179 mm")))
sketch2.addConstraint(Sketcher.Constraint("DistanceX", 5, 3, -1, 1, Q("269.22879 mm")))
sketch2.addConstraint(Sketcher.Constraint("DistanceX", 17, 3, -1, 1, Q("255.96999 mm")))
sketch2.addConstraint(Sketcher.Constraint("DistanceX", 21, 3, -1, 1, Q("235.95479 mm")))
sketch2.addConstraint(Sketcher.Constraint("DistanceY", -1, 1, 0, 3, Q("301.703154 mm")))
sketch2.addConstraint(Sketcher.Constraint("DistanceY", -1, 1, 2, 3, Q("329.643154 mm")))
sketch2.addConstraint(Sketcher.Constraint("DistanceY", -1, 1, 5, 3, Q("319.051354 mm")))
sketch2.addConstraint(Sketcher.Constraint("DistanceY", -1, 1, 9, 3, Q("299.036154 mm")))
sketch2.addConstraint(Sketcher.Constraint("DistanceY", -1, 1, 33, 3, Q("332.310154 mm")))
sketch2.setExpression("Constraints[129]", "Params.sketch2_diameter")
sketch2.setExpression("Constraints[130]", "Params.sketch2_radius")
sketch2.setExpression("Constraints[131]", "Params.sketch2_width")
pocket1 = body.newObject("PartDesign::Pocket", "Pocket")
pocket1.Profile = sketch2
pocket1.setExpression("Length", "Params.pocket1_length")
pocket1.Reversed = True

# Sketch on XZ plane
sketch3 = body.newObject("Sketcher::SketchObject", "Sketch002")
sketch3.AttachmentSupport = (doc.getObject("XZ_Plane"), [""])
sketch3.MapMode = "FlatFace"
sketch3.AttachmentOffset = App.Placement(V(0, 0, -0.0625 * 25.4), App.Rotation())
sketch3.addGeometry(Part.LineSegment(V(-260.52929, 307.735654, 0), V(-260.52929, 323.610654, 0)), False)
sketch3.addGeometry(Part.LineSegment(V(-260.52929, 323.610654, 0), V(-244.65429, 323.610654, 0)), False)
sketch3.addGeometry(Part.LineSegment(V(-244.65429, 323.610654, 0), V(-244.65429, 307.735654, 0)), False)
sketch3.addGeometry(Part.LineSegment(V(-244.65429, 307.735654, 0), V(-260.52929, 307.735654, 0)), False)
sketch3.addConstraint(Sketcher.Constraint("Coincident", 0, 2, 1, 1))
sketch3.addConstraint(Sketcher.Constraint("Coincident", 1, 2, 2, 1))
sketch3.addConstraint(Sketcher.Constraint("Coincident", 2, 2, 3, 1))
sketch3.addConstraint(Sketcher.Constraint("Coincident", 3, 2, 0, 1))
sketch3.addConstraint(Sketcher.Constraint("Vertical", 0))
sketch3.addConstraint(Sketcher.Constraint("Horizontal", 1))
sketch3.addConstraint(Sketcher.Constraint("Vertical", 2))
sketch3.addConstraint(Sketcher.Constraint("Horizontal", 3))
sketch3.addConstraint(Sketcher.Constraint("Equal", 3, 0))
sketch3.addConstraint(Sketcher.Constraint("DistanceX", 1, 1, 1, 2, Q("0.625 in")))
sketch3.addConstraint(Sketcher.Constraint("DistanceX", 0, 2, -1, 1, Q("260.52929 mm")))
sketch3.addConstraint(Sketcher.Constraint("DistanceY", -1, 1, 0, 2, Q("323.610654 mm")))
sketch3.setExpression("Constraints[9]", "Params.sketch3_width")
pad2 = body.newObject("PartDesign::Pad", "Pad001")
pad2.Profile = sketch3
pad2.setExpression("Length", "Params.pad2_length")
pad2.Reversed = True

# Sketch on XZ plane
sketch4 = body.newObject("Sketcher::SketchObject", "Sketch003")
sketch4.AttachmentSupport = (doc.getObject("XZ_Plane"), [""])
sketch4.MapMode = "FlatFace"
sketch4.AttachmentOffset = App.Placement(V(0, 0, -0.0625 * 25.4), App.Rotation())
sketch4.addGeometry(Part.LineSegment(V(-242.62229, 313.641154, 0), V(-244.65429, 313.641154, 0)), False)
sketch4.addGeometry(Part.LineSegment(V(-244.65429, 313.641154, 0), V(-244.65429, 317.705154, 0)), False)
sketch4.addGeometry(Part.LineSegment(V(-244.65429, 317.705154, 0), V(-242.62229, 317.705154, 0)), False)
sketch4.addGeometry(Part.ArcOfCircle(Part.Circle(V(-242.62229, 315.673154, 0), V(0, 0, 1), 2.032), math.radians(-90), math.radians(90)), False)
sketch4.addGeometry(Part.Circle(V(-242.62229, 315.673154, 0), V(0, 0, 1), 0.889), False)
sketch4.addGeometry(Part.LineSegment(V(-262.56129, 317.705154, 0), V(-260.52929, 317.705154, 0)), False)
sketch4.addGeometry(Part.LineSegment(V(-260.52929, 317.705154, 0), V(-260.52929, 313.641154, 0)), False)
sketch4.addGeometry(Part.LineSegment(V(-260.52929, 313.641154, 0), V(-262.56129, 313.641154, 0)), False)
sketch4.addGeometry(Part.ArcOfCircle(Part.Circle(V(-262.56129, 315.673154, 0), V(0, 0, 1), 2.032), math.radians(90), math.radians(270)), False)
sketch4.addGeometry(Part.Circle(V(-262.56129, 315.673154, 0), V(0, 0, 1), 0.889), False)
sketch4.addConstraint(Sketcher.Constraint("Coincident", 0, 2, 1, 1))
sketch4.addConstraint(Sketcher.Constraint("Coincident", 1, 2, 2, 1))
sketch4.addConstraint(Sketcher.Constraint("Tangent", 2, 2, 3, 2))
sketch4.addConstraint(Sketcher.Constraint("Tangent", 3, 1, 0, 1))
sketch4.addConstraint(Sketcher.Constraint("Coincident", 5, 2, 6, 1))
sketch4.addConstraint(Sketcher.Constraint("Coincident", 6, 2, 7, 1))
sketch4.addConstraint(Sketcher.Constraint("Tangent", 7, 2, 8, 2))
sketch4.addConstraint(Sketcher.Constraint("Tangent", 8, 1, 5, 1))
sketch4.addConstraint(Sketcher.Constraint("Horizontal", 0))
sketch4.addConstraint(Sketcher.Constraint("Vertical", 1))
sketch4.addConstraint(Sketcher.Constraint("Horizontal", 2))
sketch4.addConstraint(Sketcher.Constraint("Horizontal", 5))
sketch4.addConstraint(Sketcher.Constraint("Vertical", 6))
sketch4.addConstraint(Sketcher.Constraint("Horizontal", 7))
sketch4.addConstraint(Sketcher.Constraint("Coincident", 4, 3, 3, 3))
sketch4.addConstraint(Sketcher.Constraint("Coincident", 9, 3, 8, 3))
sketch4.addConstraint(Sketcher.Constraint("Equal", 3, 8))
sketch4.addConstraint(Sketcher.Constraint("Equal", 4, 9))
sketch4.addConstraint(Sketcher.Constraint("Horizontal", 4, 3, 8, 3))
sketch4.addConstraint(Sketcher.Constraint("Equal", 2, 5))
sketch4.addConstraint(Sketcher.Constraint("Diameter", 4, Q("0.07 in")))
sketch4.addConstraint(Sketcher.Constraint("Radius", 3, Q("0.08 in")))
sketch4.addConstraint(Sketcher.Constraint("DistanceX", 0, 2, 0, 1, Q("0.08 in")))
sketch4.addConstraint(Sketcher.Constraint("DistanceX", 8, 3, 3, 3, Q("0.785 in")))
sketch4.addConstraint(Sketcher.Constraint("DistanceX", 3, 3, -1, 1, Q("242.62229 mm")))
sketch4.addConstraint(Sketcher.Constraint("DistanceY", -1, 1, 3, 3, Q("315.673154 mm")))
sketch4.setExpression("Constraints[20]", "Params.sketch4_diameter")
sketch4.setExpression("Constraints[21]", "Params.sketch4_radius")
sketch4.setExpression("Constraints[22]", "Params.sketch4_width")
pad3 = body.newObject("PartDesign::Pad", "Pad002")
pad3.Profile = sketch4
pad3.setExpression("Length", "Params.pad3_length")
pad3.Reversed = True

# Sketch on XZ plane
sketch5 = body.newObject("Sketcher::SketchObject", "Sketch004")
sketch5.AttachmentSupport = (doc.getObject("XZ_Plane"), [""])
sketch5.MapMode = "FlatFace"
sketch5.AttachmentOffset = App.Placement(V(0, 0, -0.3275 * 25.4), App.Rotation())
sketch5.addGeometry(Part.Circle(V(-252.436354, 315.828589, 0), V(0, 0, 1), 7.747), False)
sketch5.addConstraint(Sketcher.Constraint("Diameter", 0, Q("0.61 in")))
sketch5.addConstraint(Sketcher.Constraint("DistanceY", -1, 1, 0, 3, Q("315.828589 mm")))
sketch5.addConstraint(Sketcher.Constraint("DistanceX", 0, 3, -1, 1, Q("252.436354 mm")))
sketch5.setExpression("Constraints[0]", "Params.sketch5_diameter")
pad4 = body.newObject("PartDesign::Pad", "Pad003")
pad4.Profile = sketch5
pad4.setExpression("Length", "Params.pad4_length")
pad4.Reversed = True

# Sketch on XZ plane
sketch6 = body.newObject("Sketcher::SketchObject", "Sketch005")
sketch6.AttachmentSupport = (doc.getObject("XZ_Plane"), [""])
sketch6.MapMode = "FlatFace"
sketch6.AttachmentOffset = App.Placement(V(0, 0, -0.4475 * 25.4), App.Rotation())
sketch6.addGeometry(Part.Circle(V(-252.465376, 315.583143, 0), V(0, 0, 1), 5.969), False)
sketch6.addConstraint(Sketcher.Constraint("Diameter", 0, Q("0.47 in")))
sketch6.addConstraint(Sketcher.Constraint("DistanceX", 0, 3, -1, 1, Q("252.465376 mm")))
sketch6.addConstraint(Sketcher.Constraint("DistanceY", -1, 1, 0, 3, Q("315.583143 mm")))
sketch6.setExpression("Constraints[0]", "Params.sketch6_diameter")
pad5 = body.newObject("PartDesign::Pad", "Pad004")
pad5.Profile = sketch6
pad5.setExpression("Length", "Params.pad5_length")
pad5.Reversed = True

# Sketch on XZ plane
sketch7 = body.newObject("Sketcher::SketchObject", "Sketch006")
sketch7.AttachmentSupport = (doc.getObject("XZ_Plane"), [""])
sketch7.MapMode = "FlatFace"
sketch7.AttachmentOffset = App.Placement(V(0, 0, -0.6875 * 25.4), App.Rotation())
sketch7.addGeometry(Part.Circle(V(-252.465376, 315.583143, 0), V(0, 0, 1), 6.985), False)
sketch7.addConstraint(Sketcher.Constraint("Diameter", 0, Q("0.55 in")))
sketch7.addConstraint(Sketcher.Constraint("DistanceX", 0, 3, -1, 1, Q("252.465376 mm")))
sketch7.addConstraint(Sketcher.Constraint("DistanceY", -1, 1, 0, 3, Q("315.583143 mm")))
sketch7.setExpression("Constraints[0]", "Params.sketch7_diameter")
pad6 = body.newObject("PartDesign::Pad", "Pad005")
pad6.Profile = sketch7
pad6.setExpression("Length", "Params.pad6_length")
pad6.Reversed = True

# Sketch on XZ plane
sketch8 = body.newObject("Sketcher::SketchObject", "Sketch007")
sketch8.AttachmentSupport = (doc.getObject("XZ_Plane"), [""])
sketch8.MapMode = "FlatFace"
sketch8.addGeometry(Part.LineSegment(V(-261.690392, 304.243154, 0), V(-261.690392, 299.671154, 0)), False)
sketch8.addGeometry(Part.LineSegment(V(-261.690392, 299.671154, 0), V(-251.784392, 299.671154, 0)), False)
sketch8.addGeometry(Part.LineSegment(V(-251.784392, 299.671154, 0), V(-251.784392, 304.243154, 0)), False)
sketch8.addGeometry(Part.LineSegment(V(-251.784392, 304.243154, 0), V(-261.690392, 304.243154, 0)), False)
sketch8.addConstraint(Sketcher.Constraint("Coincident", 0, 2, 1, 1))
sketch8.addConstraint(Sketcher.Constraint("Coincident", 1, 2, 2, 1))
sketch8.addConstraint(Sketcher.Constraint("Coincident", 2, 2, 3, 1))
sketch8.addConstraint(Sketcher.Constraint("Coincident", 3, 2, 0, 1))
sketch8.addConstraint(Sketcher.Constraint("Vertical", 0))
sketch8.addConstraint(Sketcher.Constraint("Horizontal", 1))
sketch8.addConstraint(Sketcher.Constraint("Vertical", 2))
sketch8.addConstraint(Sketcher.Constraint("Horizontal", 3))
sketch8.addConstraint(Sketcher.Constraint("DistanceX", 1, 1, 1, 2, Q("0.39 in")))
sketch8.addConstraint(Sketcher.Constraint("DistanceY", 0, 2, 0, 1, Q("0.18 in")))
sketch8.addConstraint(Sketcher.Constraint("DistanceX", 0, 2, -1, 1, Q("261.690392 mm")))
sketch8.addConstraint(Sketcher.Constraint("DistanceY", -1, 1, 0, 2, Q("299.671154 mm")))
sketch8.setExpression("Constraints[8]", "Params.sketch8_width")
sketch8.setExpression("Constraints[9]", "Params.sketch8_height")
pad7 = body.newObject("PartDesign::Pad", "Pad006")
pad7.Profile = sketch8
pad7.setExpression("Length", "Params.pad7_length")

doc.recompute()
